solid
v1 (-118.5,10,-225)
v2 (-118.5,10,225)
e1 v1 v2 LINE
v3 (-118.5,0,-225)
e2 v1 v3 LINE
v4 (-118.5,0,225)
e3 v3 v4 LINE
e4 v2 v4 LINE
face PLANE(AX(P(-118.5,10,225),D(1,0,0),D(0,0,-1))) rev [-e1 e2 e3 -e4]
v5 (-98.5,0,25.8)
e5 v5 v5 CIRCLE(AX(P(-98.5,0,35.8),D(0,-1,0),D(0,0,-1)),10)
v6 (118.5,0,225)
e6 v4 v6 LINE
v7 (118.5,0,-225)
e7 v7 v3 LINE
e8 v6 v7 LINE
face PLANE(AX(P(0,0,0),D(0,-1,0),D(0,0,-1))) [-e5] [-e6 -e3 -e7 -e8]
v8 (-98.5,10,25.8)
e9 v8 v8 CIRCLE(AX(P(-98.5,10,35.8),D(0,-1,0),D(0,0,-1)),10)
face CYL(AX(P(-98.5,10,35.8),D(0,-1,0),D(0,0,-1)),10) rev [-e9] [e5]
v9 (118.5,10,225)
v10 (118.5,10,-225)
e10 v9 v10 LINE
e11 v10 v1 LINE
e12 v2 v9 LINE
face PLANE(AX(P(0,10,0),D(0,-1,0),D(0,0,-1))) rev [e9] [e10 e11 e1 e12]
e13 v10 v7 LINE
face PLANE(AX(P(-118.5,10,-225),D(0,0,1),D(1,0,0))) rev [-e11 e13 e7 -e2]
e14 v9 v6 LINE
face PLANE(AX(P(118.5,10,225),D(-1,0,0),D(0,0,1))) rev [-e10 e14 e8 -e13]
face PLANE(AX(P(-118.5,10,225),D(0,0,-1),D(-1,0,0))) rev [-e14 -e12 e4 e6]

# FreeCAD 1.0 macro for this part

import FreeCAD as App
import Part
import Sketcher
from FreeCAD import Vector

doc = App.newDocument("Part")
params = doc.addObject("Spreadsheet::Sheet", "Params")
for row, (alias, value) in enumerate([
    ("sketch1_width", "237 mm"),
    ("sketch1_height", "450 mm"),
    ("pad1_length", "10 mm"),
    ("sketch2_width", "5 mm"),
    ("sketch2_height", "450 mm"),
    ("pad2_length", "70 mm"),
    ("sketch3_diameter", "4 mm"),
    ("pocket1_length", "70 mm"),
    ("sketch4_width", "70 mm"),
    ("sketch4_height", "450 mm"),
    ("pocket2_length", "10 mm"),
    ("sketch5_diameter", "20 mm"),
    ("pocket3_length", "10 mm"),
], start=1):
    params.set(f"A{row}", alias)
    params.set(f"B{row}", "=" + value)
    params.setAlias(f"B{row}", alias)

body = doc.addObject("PartDesign::Body", "Body")

sketch1 = body.newObject("Sketcher::SketchObject", "Sketch")
sketch1.AttachmentSupport = (doc.getObject("XZ_Plane"), [""])
sketch1.MapMode = "FlatFace"
sketch1.addGeometry([
    Part.LineSegment(Vector(-118.5, -225, 0), Vector(-118.5, 225, 0)),
    Part.LineSegment(Vector(-118.5, 225, 0), Vector(118.5, 225, 0)),
    Part.LineSegment(Vector(118.5, 225, 0), Vector(118.5, -225, 0)),
    Part.LineSegment(Vector(118.5, -225, 0), Vector(-118.5, -225, 0)),
], False)
sketch1.addConstraint([
    Sketcher.Constraint("Coincident", 0, 2, 1, 1),
    Sketcher.Constraint("Coincident", 1, 2, 2, 1),
    Sketcher.Constraint("Coincident", 2, 2, 3, 1),
    Sketcher.Constraint("Coincident", 3, 2, 0, 1),
    Sketcher.Constraint("Vertical", 0),
    Sketcher.Constraint("Horizontal", 1),
    Sketcher.Constraint("Vertical", 2),
    Sketcher.Constraint("Horizontal", 3),
    Sketcher.Constraint("Symmetric", 0, 2, 2, 2, -1, 1),
    Sketcher.Constraint("DistanceX", 1, 1, 1, 2, 237.0),
    Sketcher.Constraint("DistanceY", 0, 1, 0, 2, 450.0),
])
sketch1.setExpression("Constraints[9]", "Params.sketch1_width")
sketch1.setExpression("Constraints[10]", "Params.sketch1_height")
pad1 = body.newObject("PartDesign::Pad", "Pad")
pad1.Profile = sketch1
pad1.setExpression("Length", "Params.pad1_length")
pad1.Reversed = True

sketch2 = body.newObject("Sketcher::SketchObject", "Sketch001")
sketch2.AttachmentSupport = (doc.getObject("XZ_Plane"), [""])
sketch2.MapMode = "FlatFace"
sketch2.addGeometry([
    Part.LineSegment(Vector(-118.5, 225, 0), Vector(-118.5, -225, 0)),
    Part.LineSegment(Vector(-118.5, -225, 0), Vector(-113.5, -225, 0)),
    Part.LineSegment(Vector(-113.5, -225, 0), Vector(-113.5, 225, 0)),
    Part.LineSegment(Vector(-113.5, 225, 0), Vector(-118.5, 225, 0)),
], False)
sketch2.addConstraint([
    Sketcher.Constraint("Coincident", 0, 2, 1, 1),
    Sketcher.Constraint("Coincident", 1, 2, 2, 1),
    Sketcher.Constraint("Coincident", 2, 2, 3, 1),
    Sketcher.Constraint("Coincident", 3, 2, 0, 1),
    Sketcher.Constraint("Vertical", 0),
    Sketcher.Constraint("Horizontal", 1),
    Sketcher.Constraint("Vertical", 2),
    Sketcher.Constraint("Horizontal", 3),
    Sketcher.Constraint("DistanceX", 1, 1, 1, 2, 5.0),
    Sketcher.Constraint("DistanceY", 0, 2, 0, 1, 450.0),
    Sketcher.Constraint("DistanceY", 0, 2, -1, 1, 225.0),
    Sketcher.Constraint("DistanceX", 0, 2, -1, 1, 118.5),
])
sketch2.setExpression("Constraints[8]", "Params.sketch2_width")
sketch2.setExpression("Constraints[9]", "Params.sketch2_height")
pad2 = body.newObject("PartDesign::Pad", "Pad001")
pad2.Profile = sketch2
pad2.setExpression("Length", "Params.pad2_length")

sketch3 = body.newObject("Sketcher::SketchObject", "Sketch002")
sketch3.AttachmentSupport = (doc.getObject("YZ_Plane"), [""])
sketch3.MapMode = "FlatFace"
sketch3.AttachmentOffset = App.Placement(Vector(0, 0, -113.5), App.Rotation())
sketch3.addGeometry([
    Part.Circle(Vector(-10, 215, 0), Vector(0, 0, 1), 2),
    Part.Circle(Vector(-10, -215, 0), Vector(0, 0, 1), 2),
    Part.Circle(Vector(-60, -215, 0), Vector(0, 0, 1), 2),
    Part.Circle(Vector(-60, 215, 0), Vector(0, 0, 1), 2),
], False)
sketch3.addConstraint([
    Sketcher.Constraint("Equal", 0, 1),
    Sketcher.Constraint("Equal", 1, 2),
    Sketcher.Constraint("Equal", 2, 3),
    Sketcher.Constraint("Symmetric", 0, 3, 1, 3, -1),
    Sketcher.Constraint("Symmetric", 2, 3, 3, 3, -1),
    Sketcher.Constraint("Horizontal", 1, 3, 2, 3),
    Sketcher.Constraint("Diameter", 0, 4.0),
    Sketcher.Constraint("DistanceX", 0, 3, -1, 1, 10.0),
    Sketcher.Constraint("DistanceY", -1, 1, 0, 3, 215.0),
    Sketcher.Constraint("DistanceX", 2, 3, -1, 1, 60.0),
])
sketch3.setExpression("Constraints[6]", "Params.sketch3_diameter")
pocket1 = body.newObject("PartDesign::Pocket", "Pocket")
pocket1.Profile = sketch3
pocket1.setExpression("Length", "Params.pocket1_length")

sketch4 = body.newObject("Sketcher::SketchObject", "Sketch003")
sketch4.AttachmentSupport = (doc.getObject("YZ_Plane"), [""])
sketch4.MapMode = "FlatFace"
sketch4.AttachmentOffset = App.Placement(Vector(0, 0, -113.5), App.Rotation())
sketch4.addGeometry([
    Part.LineSegment(Vector(0, 225, 0), Vector(-70, 225, 0)),
    Part.LineSegment(Vector(-70, 225, 0), Vector(-70, -225, 0)),
    Part.LineSegment(Vector(-70, -225, 0), Vector(0, -225, 0)),
    Part.LineSegment(Vector(0, -225, 0), Vector(0, 225, 0)),
], False)
sketch4.addConstraint([
    Sketcher.Constraint("Coincident", 0, 2, 1, 1),
    Sketcher.Constraint("Coincident", 1, 2, 2, 1),
    Sketcher.Constraint("Coincident", 2, 2, 3, 1),
    Sketcher.Constraint("Coincident", 3, 2, 0, 1),
    Sketcher.Constraint("Horizontal", 0),
    Sketcher.Constraint("Vertical", 1),
    Sketcher.Constraint("Horizontal", 2),
    Sketcher.Constraint("Vertical", 3),
    Sketcher.Constraint("Symmetric", 2, 2, 3, 2, -1, 1),
    Sketcher.Constraint("DistanceX", 0, 2, 0, 1, 70.0),
    Sketcher.Constraint("DistanceY", 1, 2, 1, 1, 450.0),
])
sketch4.setExpression("Constraints[9]", "Params.sketch4_width")
sketch4.setExpression("Constraints[10]", "Params.sketch4_height")
pocket2 = body.newObject("PartDesign::Pocket", "Pocket001")
pocket2.Profile = sketch4
pocket2.setExpression("Length", "Params.pocket2_length")

sketch5 = body.newObject("Sketcher::SketchObject", "Sketch004")
sketch5.AttachmentSupport = (doc.getObject("XZ_Plane"), [""])
sketch5.MapMode = "FlatFace"
sketch5.addGeometry(Part.Circle(Vector(-98.5, 35.8, 0), Vector(0, 0, 1), 10), False)
sketch5.addConstraint([
    Sketcher.Constraint("Diameter", 0, 20.0),
    Sketcher.Constraint("DistanceX", 0, 3, -1, 1, 98.5),
    Sketcher.Constraint("DistanceY", -1, 1, 0, 3, 35.8),
])
sketch5.setExpression("Constraints[0]", "Params.sketch5_diameter")
pocket3 = body.newObject("PartDesign::Pocket", "Pocket002")
pocket3.Profile = sketch5
pocket3.setExpression("Length", "Params.pocket3_length")

doc.recompute()
